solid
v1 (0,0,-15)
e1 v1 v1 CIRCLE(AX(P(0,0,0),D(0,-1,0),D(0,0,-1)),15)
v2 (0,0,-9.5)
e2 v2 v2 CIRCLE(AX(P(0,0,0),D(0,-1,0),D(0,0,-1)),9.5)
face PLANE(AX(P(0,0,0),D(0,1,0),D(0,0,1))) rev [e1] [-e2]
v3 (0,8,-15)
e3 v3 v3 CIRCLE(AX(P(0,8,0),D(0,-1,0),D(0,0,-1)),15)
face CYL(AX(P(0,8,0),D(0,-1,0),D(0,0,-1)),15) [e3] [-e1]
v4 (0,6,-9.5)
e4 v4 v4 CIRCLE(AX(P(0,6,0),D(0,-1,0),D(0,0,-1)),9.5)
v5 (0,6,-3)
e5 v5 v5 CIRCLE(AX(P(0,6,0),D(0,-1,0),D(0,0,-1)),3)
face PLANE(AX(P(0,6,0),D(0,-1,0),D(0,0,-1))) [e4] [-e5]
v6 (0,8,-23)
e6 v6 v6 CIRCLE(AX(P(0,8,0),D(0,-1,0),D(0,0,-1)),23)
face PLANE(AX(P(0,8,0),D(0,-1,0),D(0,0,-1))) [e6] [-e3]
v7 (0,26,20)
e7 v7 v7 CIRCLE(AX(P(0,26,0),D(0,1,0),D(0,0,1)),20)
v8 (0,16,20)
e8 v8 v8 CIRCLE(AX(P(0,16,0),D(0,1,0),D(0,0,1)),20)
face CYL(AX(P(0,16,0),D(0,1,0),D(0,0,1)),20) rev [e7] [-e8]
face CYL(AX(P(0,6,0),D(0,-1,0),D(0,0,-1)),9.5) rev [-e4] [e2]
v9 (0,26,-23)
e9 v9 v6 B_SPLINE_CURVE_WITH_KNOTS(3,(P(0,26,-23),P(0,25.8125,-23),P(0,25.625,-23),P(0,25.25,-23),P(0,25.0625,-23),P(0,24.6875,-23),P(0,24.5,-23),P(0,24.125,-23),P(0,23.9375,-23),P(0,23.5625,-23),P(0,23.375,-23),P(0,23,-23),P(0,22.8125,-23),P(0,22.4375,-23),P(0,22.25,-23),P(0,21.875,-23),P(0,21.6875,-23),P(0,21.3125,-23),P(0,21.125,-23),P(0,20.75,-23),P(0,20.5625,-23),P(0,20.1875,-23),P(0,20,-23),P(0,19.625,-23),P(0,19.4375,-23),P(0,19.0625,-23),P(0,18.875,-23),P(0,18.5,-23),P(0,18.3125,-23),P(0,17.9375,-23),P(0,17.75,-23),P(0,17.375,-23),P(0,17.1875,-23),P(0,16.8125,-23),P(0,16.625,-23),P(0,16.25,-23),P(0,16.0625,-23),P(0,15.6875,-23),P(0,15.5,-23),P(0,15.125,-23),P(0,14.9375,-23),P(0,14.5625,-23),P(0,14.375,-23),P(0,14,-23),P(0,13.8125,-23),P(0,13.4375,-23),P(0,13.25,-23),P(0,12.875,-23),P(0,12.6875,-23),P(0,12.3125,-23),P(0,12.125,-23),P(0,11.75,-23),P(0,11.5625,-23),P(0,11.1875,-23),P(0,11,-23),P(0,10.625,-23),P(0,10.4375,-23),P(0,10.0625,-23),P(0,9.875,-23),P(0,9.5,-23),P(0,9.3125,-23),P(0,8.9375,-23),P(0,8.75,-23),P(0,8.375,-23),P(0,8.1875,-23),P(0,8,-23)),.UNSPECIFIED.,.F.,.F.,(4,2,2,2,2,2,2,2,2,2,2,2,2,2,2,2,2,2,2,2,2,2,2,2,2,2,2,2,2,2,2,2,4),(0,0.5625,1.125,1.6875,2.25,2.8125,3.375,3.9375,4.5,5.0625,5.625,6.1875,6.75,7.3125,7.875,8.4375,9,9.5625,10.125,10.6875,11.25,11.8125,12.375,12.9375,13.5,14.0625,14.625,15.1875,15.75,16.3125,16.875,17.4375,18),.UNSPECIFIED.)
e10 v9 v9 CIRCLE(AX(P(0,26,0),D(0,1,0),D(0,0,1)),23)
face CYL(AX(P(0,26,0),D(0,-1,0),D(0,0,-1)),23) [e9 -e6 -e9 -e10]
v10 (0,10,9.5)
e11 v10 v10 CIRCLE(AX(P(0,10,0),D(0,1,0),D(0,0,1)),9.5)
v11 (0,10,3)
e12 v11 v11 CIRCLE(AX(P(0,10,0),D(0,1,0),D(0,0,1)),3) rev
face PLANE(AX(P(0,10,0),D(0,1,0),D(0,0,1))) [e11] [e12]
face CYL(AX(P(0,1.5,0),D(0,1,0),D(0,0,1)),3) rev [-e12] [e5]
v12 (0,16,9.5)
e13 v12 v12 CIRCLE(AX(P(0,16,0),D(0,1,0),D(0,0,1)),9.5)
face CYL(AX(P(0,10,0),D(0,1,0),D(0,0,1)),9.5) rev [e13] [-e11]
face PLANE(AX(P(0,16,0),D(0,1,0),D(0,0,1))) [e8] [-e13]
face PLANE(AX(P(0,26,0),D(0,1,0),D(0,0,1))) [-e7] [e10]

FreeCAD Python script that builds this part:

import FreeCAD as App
import Part
import Sketcher

V = App.Vector

doc = App.newDocument("Part")
body = doc.addObject("PartDesign::Body", "Body")

# Sketch on XZ plane
sketch1 = body.newObject("Sketcher::SketchObject", "Sketch")
sketch1.AttachmentSupport = (doc.getObject("XZ_Plane"), [""])
sketch1.MapMode = "FlatFace"
sketch1.addGeometry(Part.Circle(V(0, 0, 0), V(0, 0, 1), 23), False)
sketch1.addConstraint([
    Sketcher.Constraint("Coincident", 0, 3, -1, 1),
    Sketcher.Constraint("Diameter", 0, 46.0),
])
pad1 = body.newObject("PartDesign::Pad", "Pad")
pad1.Profile = sketch1
pad1.Length = 26
pad1.Reversed = True

# Sketch on XZ plane
sketch2 = body.newObject("Sketcher::SketchObject", "Sketch001")
sketch2.AttachmentSupport = (doc.getObject("XZ_Plane"), [""])
sketch2.MapMode = "FlatFace"
sketch2.addGeometry([
    Part.Circle(V(0, 0, 0), V(0, 0, 1), 23),
    Part.Circle(V(0, 0, 0), V(0, 0, 1), 15),
], False)
sketch2.addConstraint([
    Sketcher.Constraint("Coincident", 0, 3, -1, 1),
    Sketcher.Constraint("Coincident", 1, 3, -1, 1),
    Sketcher.Constraint("Diameter", 0, 46.0),
    Sketcher.Constraint("Diameter", 1, 30.0),
])
pocket1 = body.newObject("PartDesign::Pocket", "Pocket")
pocket1.Profile = sketch2
pocket1.Length = 8

# Sketch on XZ plane
sketch3 = body.newObject("Sketcher::SketchObject", "Sketch002")
sketch3.AttachmentSupport = (doc.getObject("XZ_Plane"), [""])
sketch3.MapMode = "FlatFace"
sketch3.addGeometry(Part.Circle(V(0, 0, 0), V(0, 0, 1), 10), False)
sketch3.addConstraint([
    Sketcher.Constraint("Coincident", 0, 3, -1, 1),
    Sketcher.Constraint("Diameter", 0, 19.0),
])
pocket2 = body.newObject("PartDesign::Pocket", "Pocket001")
pocket2.Profile = sketch3
pocket2.Length = 6

# Sketch on XZ plane
sketch4 = body.newObject("Sketcher::SketchObject", "Sketch003")
sketch4.AttachmentSupport = (doc.getObject("XZ_Plane"), [""])
sketch4.MapMode = "FlatFace"
sketch4.AttachmentOffset = App.Placement(V(0, 0, -26), App.Rotation())
sketch4.addGeometry(Part.Circle(V(0, 0, 0), V(0, 0, 1), 3), False)
sketch4.addConstraint([
    Sketcher.Constraint("Coincident", 0, 3, -1, 1),
    Sketcher.Constraint("Diameter", 0, 6.0),
])
pocket3 = body.newObject("PartDesign::Pocket", "Pocket002")
pocket3.Profile = sketch4
pocket3.Length = 24.5
pocket3.Reversed = True

# Sketch on XZ plane
sketch5 = body.newObject("Sketcher::SketchObject", "Sketch004")
sketch5.AttachmentSupport = (doc.getObject("XZ_Plane"), [""])
sketch5.MapMode = "FlatFace"
sketch5.AttachmentOffset = App.Placement(V(0, 0, -26), App.Rotation())
sketch5.addGeometry(Part.Circle(V(0, 0, 0), V(0, 0, 1), 20), False)
sketch5.addConstraint([
    Sketcher.Constraint("Coincident", 0, 3, -1, 1),
    Sketcher.Constraint("Diameter", 0, 40.0),
])
pocket4 = body.newObject("PartDesign::Pocket", "Pocket003")
pocket4.Profile = sketch5
pocket4.Length = 10
pocket4.Reversed = True

# Sketch on XZ plane
sketch6 = body.newObject("Sketcher::SketchObject", "Sketch005")
sketch6.AttachmentSupport = (doc.getObject("XZ_Plane"), [""])
sketch6.MapMode = "FlatFace"
sketch6.AttachmentOffset = App.Placement(V(0, 0, -10), App.Rotation())
sketch6.addGeometry(Part.Circle(V(0, 0, 0), V(0, 0, 1), 10), False)
sketch6.addConstraint([
    Sketcher.Constraint("Coincident", 0, 3, -1, 1),
    Sketcher.Constraint("Diameter", 0, 19.0),
])
pocket5 = body.newObject("PartDesign::Pocket", "Pocket004")
pocket5.Profile = sketch6
pocket5.Length = 6

doc.recompute()
